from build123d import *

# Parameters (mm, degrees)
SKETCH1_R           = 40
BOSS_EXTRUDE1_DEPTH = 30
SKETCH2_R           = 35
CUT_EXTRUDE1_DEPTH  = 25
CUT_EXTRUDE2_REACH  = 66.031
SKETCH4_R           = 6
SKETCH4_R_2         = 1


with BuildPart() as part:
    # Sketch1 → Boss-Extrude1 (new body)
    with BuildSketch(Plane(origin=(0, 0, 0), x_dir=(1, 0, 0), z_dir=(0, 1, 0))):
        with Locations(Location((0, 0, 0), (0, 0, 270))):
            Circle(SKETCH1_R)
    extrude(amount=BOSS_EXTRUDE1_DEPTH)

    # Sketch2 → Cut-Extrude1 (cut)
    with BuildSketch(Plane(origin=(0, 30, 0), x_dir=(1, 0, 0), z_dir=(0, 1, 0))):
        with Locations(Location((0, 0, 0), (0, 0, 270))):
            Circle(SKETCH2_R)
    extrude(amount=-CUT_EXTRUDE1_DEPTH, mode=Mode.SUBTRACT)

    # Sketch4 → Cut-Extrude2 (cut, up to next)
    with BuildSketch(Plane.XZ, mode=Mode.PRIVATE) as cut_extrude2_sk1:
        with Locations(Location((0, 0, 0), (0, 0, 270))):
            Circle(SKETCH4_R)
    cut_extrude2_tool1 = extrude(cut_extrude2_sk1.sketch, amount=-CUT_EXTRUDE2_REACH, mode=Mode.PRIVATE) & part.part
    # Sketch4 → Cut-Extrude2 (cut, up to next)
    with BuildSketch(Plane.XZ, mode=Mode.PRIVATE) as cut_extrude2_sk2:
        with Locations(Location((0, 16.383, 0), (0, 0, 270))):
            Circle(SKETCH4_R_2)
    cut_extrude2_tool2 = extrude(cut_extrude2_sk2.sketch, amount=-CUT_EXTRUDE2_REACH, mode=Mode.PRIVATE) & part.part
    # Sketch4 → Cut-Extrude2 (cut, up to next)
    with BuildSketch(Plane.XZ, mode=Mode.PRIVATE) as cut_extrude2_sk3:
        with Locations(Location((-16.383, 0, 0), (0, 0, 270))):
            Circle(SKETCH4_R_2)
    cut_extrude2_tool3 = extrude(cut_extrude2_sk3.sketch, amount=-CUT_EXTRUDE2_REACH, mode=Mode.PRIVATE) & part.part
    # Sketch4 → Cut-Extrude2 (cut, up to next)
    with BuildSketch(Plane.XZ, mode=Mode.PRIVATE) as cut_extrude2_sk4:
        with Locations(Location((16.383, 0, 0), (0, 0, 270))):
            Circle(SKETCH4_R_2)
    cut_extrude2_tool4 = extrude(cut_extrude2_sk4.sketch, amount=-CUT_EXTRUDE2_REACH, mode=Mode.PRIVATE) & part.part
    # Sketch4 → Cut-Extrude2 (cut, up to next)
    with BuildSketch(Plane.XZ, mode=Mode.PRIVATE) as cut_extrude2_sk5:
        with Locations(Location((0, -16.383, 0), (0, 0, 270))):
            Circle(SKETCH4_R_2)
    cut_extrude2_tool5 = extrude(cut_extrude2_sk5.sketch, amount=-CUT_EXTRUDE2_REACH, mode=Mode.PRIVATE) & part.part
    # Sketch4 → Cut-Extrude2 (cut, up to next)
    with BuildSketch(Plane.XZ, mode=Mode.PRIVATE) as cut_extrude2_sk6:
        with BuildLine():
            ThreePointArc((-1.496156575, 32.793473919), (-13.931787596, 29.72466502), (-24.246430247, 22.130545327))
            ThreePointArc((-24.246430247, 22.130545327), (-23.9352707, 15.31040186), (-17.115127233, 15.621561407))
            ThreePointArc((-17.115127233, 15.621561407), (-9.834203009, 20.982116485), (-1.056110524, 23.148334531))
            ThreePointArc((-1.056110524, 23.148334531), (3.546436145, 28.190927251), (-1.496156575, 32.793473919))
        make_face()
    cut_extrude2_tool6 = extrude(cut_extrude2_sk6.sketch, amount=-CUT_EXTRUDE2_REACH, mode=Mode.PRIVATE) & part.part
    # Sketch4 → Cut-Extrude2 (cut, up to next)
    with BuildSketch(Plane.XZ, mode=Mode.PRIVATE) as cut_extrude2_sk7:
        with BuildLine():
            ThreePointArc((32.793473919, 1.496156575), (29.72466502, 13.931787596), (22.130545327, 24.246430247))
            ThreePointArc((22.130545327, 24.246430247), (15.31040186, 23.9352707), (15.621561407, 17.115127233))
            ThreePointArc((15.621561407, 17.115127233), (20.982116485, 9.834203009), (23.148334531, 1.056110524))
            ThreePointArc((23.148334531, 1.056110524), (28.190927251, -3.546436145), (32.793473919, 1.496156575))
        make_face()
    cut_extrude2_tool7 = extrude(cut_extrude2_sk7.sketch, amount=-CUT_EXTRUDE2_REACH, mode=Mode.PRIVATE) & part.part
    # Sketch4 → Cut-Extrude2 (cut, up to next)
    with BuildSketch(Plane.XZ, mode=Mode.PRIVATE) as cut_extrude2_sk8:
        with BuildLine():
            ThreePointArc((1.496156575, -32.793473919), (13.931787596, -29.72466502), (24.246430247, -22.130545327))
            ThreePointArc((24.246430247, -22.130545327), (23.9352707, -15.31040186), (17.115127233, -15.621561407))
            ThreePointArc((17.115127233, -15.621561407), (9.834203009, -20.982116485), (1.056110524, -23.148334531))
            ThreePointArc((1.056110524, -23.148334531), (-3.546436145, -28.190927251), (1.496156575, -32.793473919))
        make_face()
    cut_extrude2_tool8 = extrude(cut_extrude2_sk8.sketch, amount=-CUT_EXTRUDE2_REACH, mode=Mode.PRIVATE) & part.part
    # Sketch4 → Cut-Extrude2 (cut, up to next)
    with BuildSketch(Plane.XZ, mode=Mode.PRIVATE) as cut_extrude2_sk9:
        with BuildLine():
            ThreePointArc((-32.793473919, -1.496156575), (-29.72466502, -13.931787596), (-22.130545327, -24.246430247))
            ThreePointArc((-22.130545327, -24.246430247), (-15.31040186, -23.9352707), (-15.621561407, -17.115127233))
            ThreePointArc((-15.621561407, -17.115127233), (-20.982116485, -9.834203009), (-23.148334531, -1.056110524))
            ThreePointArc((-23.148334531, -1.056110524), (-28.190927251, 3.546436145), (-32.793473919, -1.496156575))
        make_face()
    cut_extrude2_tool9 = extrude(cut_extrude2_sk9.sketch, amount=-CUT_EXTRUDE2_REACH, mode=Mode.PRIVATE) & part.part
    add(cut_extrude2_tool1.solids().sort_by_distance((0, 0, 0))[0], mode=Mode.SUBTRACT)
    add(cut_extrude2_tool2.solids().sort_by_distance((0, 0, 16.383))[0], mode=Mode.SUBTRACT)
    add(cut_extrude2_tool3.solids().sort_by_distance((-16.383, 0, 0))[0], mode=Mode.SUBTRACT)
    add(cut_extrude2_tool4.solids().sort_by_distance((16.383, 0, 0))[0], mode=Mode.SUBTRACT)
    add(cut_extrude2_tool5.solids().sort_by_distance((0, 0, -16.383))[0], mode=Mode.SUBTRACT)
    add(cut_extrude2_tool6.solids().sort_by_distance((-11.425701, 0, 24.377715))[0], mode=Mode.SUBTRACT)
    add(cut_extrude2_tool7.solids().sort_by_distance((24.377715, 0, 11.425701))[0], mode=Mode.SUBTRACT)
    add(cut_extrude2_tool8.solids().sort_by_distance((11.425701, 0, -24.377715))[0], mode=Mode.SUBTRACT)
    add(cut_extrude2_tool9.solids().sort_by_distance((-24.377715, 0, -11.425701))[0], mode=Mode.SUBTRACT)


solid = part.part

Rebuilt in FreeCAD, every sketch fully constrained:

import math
import FreeCAD as App
import Part
import Sketcher
from FreeCAD import Vector

doc = App.newDocument("Part")
body = doc.addObject("PartDesign::Body", "Body")

# Sketch on XZ plane
sketch1 = body.newObject("Sketcher::SketchObject", "Sketch")
sketch1.AttachmentSupport = (doc.getObject("XZ_Plane"), [""])
sketch1.MapMode = "FlatFace"
sketch1.addGeometry(Part.Circle(Vector(0, 0, 0), Vector(0, 0, 1), 40), False)
sketch1.addConstraint(Sketcher.Constraint("Coincident", 0, 3, -1, 1))
sketch1.addConstraint(Sketcher.Constraint("Diameter", 0, 80.0))
pad1 = body.newObject("PartDesign::Pad", "Pad")
pad1.Profile = sketch1
pad1.Length = 30
pad1.Reversed = True

# Sketch on XZ plane
sketch2 = body.newObject("Sketcher::SketchObject", "Sketch001")
sketch2.AttachmentSupport = (doc.getObject("XZ_Plane"), [""])
sketch2.MapMode = "FlatFace"
sketch2.AttachmentOffset = App.Placement(Vector(0, 0, -30), App.Rotation())
sketch2.addGeometry(Part.Circle(Vector(0, 0, 0), Vector(0, 0, 1), 35), False)
sketch2.addConstraint(Sketcher.Constraint("Coincident", 0, 3, -1, 1))
sketch2.addConstraint(Sketcher.Constraint("Diameter", 0, 70.0))
pocket1 = body.newObject("PartDesign::Pocket", "Pocket")
pocket1.Profile = sketch2
pocket1.Length = 25
pocket1.Reversed = True

# Sketch on XZ plane
sketch3 = body.newObject("Sketcher::SketchObject", "Sketch002")
sketch3.AttachmentSupport = (doc.getObject("XZ_Plane"), [""])
sketch3.MapMode = "FlatFace"
sketch3.addGeometry(Part.Circle(Vector(0, 0, 0), Vector(0, 0, 1), 6), False)
sketch3.addConstraint(Sketcher.Constraint("Coincident", 0, 3, -1, 1))
sketch3.addConstraint(Sketcher.Constraint("Diameter", 0, 12.0))
pocket2 = body.newObject("PartDesign::Pocket", "Pocket001")
pocket2.Profile = sketch3
pocket2.Type = "UpToFirst"

# Sketch on XZ plane
sketch4 = body.newObject("Sketcher::SketchObject", "Sketch003")
sketch4.AttachmentSupport = (doc.getObject("XZ_Plane"), [""])
sketch4.MapMode = "FlatFace"
sketch4.addGeometry(Part.Circle(Vector(0, 16.383, 0), Vector(0, 0, 1), 1), False)
sketch4.addConstraint(Sketcher.Constraint("PointOnObject", 0, 3, -2))
sketch4.addConstraint(Sketcher.Constraint("Diameter", 0, 2.0))
sketch4.addConstraint(Sketcher.Constraint("DistanceY", -1, 1, 0, 3, 16.383))
pocket3 = body.newObject("PartDesign::Pocket", "Pocket002")
pocket3.Profile = sketch4
pocket3.Type = "UpToFirst"

# Sketch on XZ plane
sketch5 = body.newObject("Sketcher::SketchObject", "Sketch004")
sketch5.AttachmentSupport = (doc.getObject("XZ_Plane"), [""])
sketch5.MapMode = "FlatFace"
sketch5.addGeometry(Part.Circle(Vector(-16.383, 0, 0), Vector(0, 0, 1), 1), False)
sketch5.addConstraint(Sketcher.Constraint("PointOnObject", 0, 3, -1))
sketch5.addConstraint(Sketcher.Constraint("Diameter", 0, 2.0))
sketch5.addConstraint(Sketcher.Constraint("DistanceX", 0, 3, -1, 1, 16.383))
pocket4 = body.newObject("PartDesign::Pocket", "Pocket003")
pocket4.Profile = sketch5
pocket4.Type = "UpToFirst"

# Sketch on XZ plane
sketch6 = body.newObject("Sketcher::SketchObject", "Sketch005")
sketch6.AttachmentSupport = (doc.getObject("XZ_Plane"), [""])
sketch6.MapMode = "FlatFace"
sketch6.addGeometry(Part.Circle(Vector(16.383, 0, 0), Vector(0, 0, 1), 1), False)
sketch6.addConstraint(Sketcher.Constraint("PointOnObject", 0, 3, -1))
sketch6.addConstraint(Sketcher.Constraint("Diameter", 0, 2.0))
sketch6.addConstraint(Sketcher.Constraint("DistanceX", -1, 1, 0, 3, 16.383))
pocket5 = body.newObject("PartDesign::Pocket", "Pocket004")
pocket5.Profile = sketch6
pocket5.Type = "UpToFirst"

# Sketch on XZ plane
sketch7 = body.newObject("Sketcher::SketchObject", "Sketch006")
sketch7.AttachmentSupport = (doc.getObject("XZ_Plane"), [""])
sketch7.MapMode = "FlatFace"
sketch7.addGeometry(Part.Circle(Vector(0, -16.383, 0), Vector(0, 0, 1), 1), False)
sketch7.addConstraint(Sketcher.Constraint("PointOnObject", 0, 3, -2))
sketch7.addConstraint(Sketcher.Constraint("Diameter", 0, 2.0))
sketch7.addConstraint(Sketcher.Constraint("DistanceY", 0, 3, -1, 1, 16.383))
pocket6 = body.newObject("PartDesign::Pocket", "Pocket005")
pocket6.Profile = sketch7
pocket6.Type = "UpToFirst"

# Sketch on XZ plane
sketch8 = body.newObject("Sketcher::SketchObject", "Sketch007")
sketch8.AttachmentSupport = (doc.getObject("XZ_Plane"), [""])
sketch8.MapMode = "FlatFace"
sketch8.addGeometry(Part.ArcOfCircle(Part.Circle(Vector(0, 0, 0), Vector(0, 0, 1), 32.827586), math.radians(92.612229), math.radians(137.612229)), False)
sketch8.addGeometry(Part.ArcOfCircle(Part.Circle(Vector(-20.680779, 18.876053, 0), Vector(0, 0, 1), 4.827586), math.radians(137.612229), math.radians(317.612229)), False)
sketch8.addGeometry(Part.ArcOfCircle(Part.Circle(Vector(0, 0, 0), Vector(0, 0, 1), 23.172414), math.radians(92.612229), math.radians(137.612229)), False)
sketch8.addGeometry(Part.ArcOfCircle(Part.Circle(Vector(-1.276134, 27.970904, 0), Vector(0, 0, 1), 4.827586), math.radians(-87.387771), math.radians(92.612229)), False)
sketch8.addConstraint(Sketcher.Constraint("Tangent", 0, 2, 1, 1))
sketch8.addConstraint(Sketcher.Constraint("Tangent", 1, 2, 2, 2))
sketch8.addConstraint(Sketcher.Constraint("Tangent", 2, 1, 3, 1))
sketch8.addConstraint(Sketcher.Constraint("Tangent", 3, 2, 0, 1))
sketch8.addConstraint(Sketcher.Constraint("Coincident", 0, 3, -1, 1))
sketch8.addConstraint(Sketcher.Constraint("Coincident", 2, 3, -1, 1))
sketch8.addConstraint(Sketcher.Constraint("Radius", 0, 32.827586))
sketch8.addConstraint(Sketcher.Constraint("Radius", 1, 4.827586))
sketch8.addConstraint(Sketcher.Constraint("DistanceX", 1, 3, -1, 1, 20.680779))
sketch8.addConstraint(Sketcher.Constraint("DistanceX", 2, 1, -1, 1, 1.056111))
pocket7 = body.newObject("PartDesign::Pocket", "Pocket006")
pocket7.Profile = sketch8
pocket7.Type = "UpToFirst"

# Sketch on XZ plane
sketch9 = body.newObject("Sketcher::SketchObject", "Sketch008")
sketch9.AttachmentSupport = (doc.getObject("XZ_Plane"), [""])
sketch9.MapMode = "FlatFace"
sketch9.addGeometry(Part.ArcOfCircle(Part.Circle(Vector(0, 0, 0), Vector(0, 0, 1), 32.827586), math.radians(2.612229), math.radians(47.612229)), False)
sketch9.addGeometry(Part.ArcOfCircle(Part.Circle(Vector(18.876053, 20.680779, 0), Vector(0, 0, 1), 4.827586), math.radians(47.612229), math.radians(227.612229)), False)
sketch9.addGeometry(Part.ArcOfCircle(Part.Circle(Vector(0, 0, 0), Vector(0, 0, 1), 23.172414), math.radians(2.612229), math.radians(47.612229)), False)
sketch9.addGeometry(Part.ArcOfCircle(Part.Circle(Vector(27.970904, 1.276134, 0), Vector(0, 0, 1), 4.827586), math.radians(-177.387771), math.radians(2.612229)), False)
sketch9.addConstraint(Sketcher.Constraint("Tangent", 0, 2, 1, 1))
sketch9.addConstraint(Sketcher.Constraint("Tangent", 1, 2, 2, 2))
sketch9.addConstraint(Sketcher.Constraint("Tangent", 2, 1, 3, 1))
sketch9.addConstraint(Sketcher.Constraint("Tangent", 3, 2, 0, 1))
sketch9.addConstraint(Sketcher.Constraint("Coincident", 0, 3, -1, 1))
sketch9.addConstraint(Sketcher.Constraint("Coincident", 2, 3, -1, 1))
sketch9.addConstraint(Sketcher.Constraint("Radius", 0, 32.827586))
sketch9.addConstraint(Sketcher.Constraint("Radius", 1, 4.827586))
sketch9.addConstraint(Sketcher.Constraint("DistanceY", -1, 1, 1, 3, 20.680779))
sketch9.addConstraint(Sketcher.Constraint("DistanceY", -1, 1, 2, 1, 1.056111))
pocket8 = body.newObject("PartDesign::Pocket", "Pocket007")
pocket8.Profile = sketch9
pocket8.Type = "UpToFirst"

# Sketch on XZ plane
sketch10 = body.newObject("Sketcher::SketchObject", "Sketch009")
sketch10.AttachmentSupport = (doc.getObject("XZ_Plane"), [""])
sketch10.MapMode = "FlatFace"
sketch10.addGeometry(Part.ArcOfCircle(Part.Circle(Vector(0, 0, 0), Vector(0, 0, 1), 32.827586), math.radians(-87.387771), math.radians(-42.387771)), False)
sketch10.addGeometry(Part.ArcOfCircle(Part.Circle(Vector(20.680779, -18.876053, 0), Vector(0, 0, 1), 4.827586), math.radians(-42.387771), math.radians(137.612229)), False)
sketch10.addGeometry(Part.ArcOfCircle(Part.Circle(Vector(0, 0, 0), Vector(0, 0, 1), 23.172414), math.radians(-87.387771), math.radians(-42.387771)), False)
sketch10.addGeometry(Part.ArcOfCircle(Part.Circle(Vector(1.276134, -27.970904, 0), Vector(0, 0, 1), 4.827586), math.radians(92.612229), math.radians(272.612229)), False)
sketch10.addConstraint(Sketcher.Constraint("Tangent", 0, 2, 1, 1))
sketch10.addConstraint(Sketcher.Constraint("Tangent", 1, 2, 2, 2))
sketch10.addConstraint(Sketcher.Constraint("Tangent", 2, 1, 3, 1))
sketch10.addConstraint(Sketcher.Constraint("Tangent", 3, 2, 0, 1))
sketch10.addConstraint(Sketcher.Constraint("Coincident", 0, 3, -1, 1))
sketch10.addConstraint(Sketcher.Constraint("Coincident", 2, 3, -1, 1))
sketch10.addConstraint(Sketcher.Constraint("Radius", 0, 32.827586))
sketch10.addConstraint(Sketcher.Constraint("Radius", 1, 4.827586))
sketch10.addConstraint(Sketcher.Constraint("DistanceX", -1, 1, 1, 3, 20.680779))
sketch10.addConstraint(Sketcher.Constraint("DistanceX", -1, 1, 2, 1, 1.056111))
pocket9 = body.newObject("PartDesign::Pocket", "Pocket008")
pocket9.Profile = sketch10
pocket9.Type = "UpToFirst"

# Sketch on XZ plane
sketch11 = body.newObject("Sketcher::SketchObject", "Sketch010")
sketch11.AttachmentSupport = (doc.getObject("XZ_Plane"), [""])
sketch11.MapMode = "FlatFace"
sketch11.addGeometry(Part.ArcOfCircle(Part.Circle(Vector(0, 0, 0), Vector(0, 0, 1), 32.827586), math.radians(-177.387771), math.radians(-132.387771)), False)
sketch11.addGeometry(Part.ArcOfCircle(Part.Circle(Vector(-18.876053, -20.680779, 0), Vector(0, 0, 1), 4.827586), math.radians(-132.387771), math.radians(47.612229)), False)
sketch11.addGeometry(Part.ArcOfCircle(Part.Circle(Vector(0, 0, 0), Vector(0, 0, 1), 23.172414), math.radians(-177.387771), math.radians(-132.387771)), False)
sketch11.addGeometry(Part.ArcOfCircle(Part.Circle(Vector(-27.970904, -1.276134, 0), Vector(0, 0, 1), 4.827586), math.radians(2.612229), math.radians(182.612229)), False)
sketch11.addConstraint(Sketcher.Constraint("Tangent", 0, 2, 1, 1))
sketch11.addConstraint(Sketcher.Constraint("Tangent", 1, 2, 2, 2))
sketch11.addConstraint(Sketcher.Constraint("Tangent", 2, 1, 3, 1))
sketch11.addConstraint(Sketcher.Constraint("Tangent", 3, 2, 0, 1))
sketch11.addConstraint(Sketcher.Constraint("Coincident", 0, 3, -1, 1))
sketch11.addConstraint(Sketcher.Constraint("Coincident", 2, 3, -1, 1))
sketch11.addConstraint(Sketcher.Constraint("Radius", 0, 32.827586))
sketch11.addConstraint(Sketcher.Constraint("Radius", 1, 4.827586))
sketch11.addConstraint(Sketcher.Constraint("DistanceY", 1, 3, -1, 1, 20.680779))
sketch11.addConstraint(Sketcher.Constraint("DistanceY", 2, 1, -1, 1, 1.056111))
pocket10 = body.newObject("PartDesign::Pocket", "Pocket009")
pocket10.Profile = sketch11
pocket10.Type = "UpToFirst"

doc.recompute()
